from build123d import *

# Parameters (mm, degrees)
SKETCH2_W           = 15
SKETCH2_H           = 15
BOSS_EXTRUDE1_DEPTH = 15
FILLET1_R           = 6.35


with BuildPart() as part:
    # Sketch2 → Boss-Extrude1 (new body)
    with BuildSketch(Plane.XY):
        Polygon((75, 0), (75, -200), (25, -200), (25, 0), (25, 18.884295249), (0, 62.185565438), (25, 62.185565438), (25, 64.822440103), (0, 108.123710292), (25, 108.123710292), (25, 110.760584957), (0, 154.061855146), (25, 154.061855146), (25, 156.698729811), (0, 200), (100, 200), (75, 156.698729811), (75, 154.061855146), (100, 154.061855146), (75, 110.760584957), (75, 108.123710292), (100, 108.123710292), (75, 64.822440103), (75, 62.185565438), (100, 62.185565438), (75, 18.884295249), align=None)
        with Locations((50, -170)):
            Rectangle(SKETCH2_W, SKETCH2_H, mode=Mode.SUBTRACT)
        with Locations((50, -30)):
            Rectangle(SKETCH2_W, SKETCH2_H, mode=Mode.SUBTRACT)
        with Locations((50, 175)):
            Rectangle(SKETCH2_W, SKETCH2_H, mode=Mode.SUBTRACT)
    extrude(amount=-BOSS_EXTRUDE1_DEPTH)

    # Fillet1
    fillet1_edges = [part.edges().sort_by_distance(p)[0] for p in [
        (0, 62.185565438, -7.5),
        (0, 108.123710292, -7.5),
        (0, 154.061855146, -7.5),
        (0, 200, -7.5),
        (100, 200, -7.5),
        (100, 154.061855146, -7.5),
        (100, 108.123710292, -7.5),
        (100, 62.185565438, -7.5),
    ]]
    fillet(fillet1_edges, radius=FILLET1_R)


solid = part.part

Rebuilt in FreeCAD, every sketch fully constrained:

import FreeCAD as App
import Part
import Sketcher
Q = App.Units.Quantity


def edges_at(feature, points):
    """Names of the edges that pass closest to the given points."""
    edges = feature.Shape.Edges
    near = lambda p: min(range(len(edges)), key=lambda i: edges[i].distToShape(Part.Vertex(*p))[0])
    return sorted({f"Edge{near(p) + 1}" for p in points})

doc = App.newDocument("Part")
params = doc.addObject("Spreadsheet::Sheet", "Params")
for row, (alias, value) in enumerate([
    ("sketch1_width", "25 mm"),
    ("sketch1_width2", "100 mm"),
    ("sketch1_width3", "15 mm"),
    ("pad1_length", "15 mm"),
    ("fillet_radius", "6.35 mm"),
], start=1):
    params.set(f"A{row}", alias)
    params.set(f"B{row}", "=" + value)
    params.setAlias(f"B{row}", alias)

body = doc.addObject("PartDesign::Body", "Body")

# Sketch on XY plane
sketch1 = body.newObject("Sketcher::SketchObject", "Sketch")
sketch1.AttachmentSupport = (doc.getObject("XY_Plane"), [""])
sketch1.MapMode = "FlatFace"
sketch1.addGeometry(Part.LineSegment(App.Vector(75, -200, 0), App.Vector(75, 18.9, 0)), False)
sketch1.addGeometry(Part.LineSegment(App.Vector(75, 18.9, 0), App.Vector(100, 62.2, 0)), False)
sketch1.addGeometry(Part.LineSegment(App.Vector(100, 62.2, 0), App.Vector(75, 62.2, 0)), False)
sketch1.addGeometry(Part.LineSegment(App.Vector(75, 62.2, 0), App.Vector(75, 64.8, 0)), False)
sketch1.addGeometry(Part.LineSegment(App.Vector(75, 64.8, 0), App.Vector(100, 108.1, 0)), False)
sketch1.addGeometry(Part.LineSegment(App.Vector(100, 108.1, 0), App.Vector(75, 108.1, 0)), False)
sketch1.addGeometry(Part.LineSegment(App.Vector(75, 108.1, 0), App.Vector(75, 110.8, 0)), False)
sketch1.addGeometry(Part.LineSegment(App.Vector(75, 110.8, 0), App.Vector(100, 154.1, 0)), False)
sketch1.addGeometry(Part.LineSegment(App.Vector(100, 154.1, 0), App.Vector(75, 154.1, 0)), False)
sketch1.addGeometry(Part.LineSegment(App.Vector(75, 154.1, 0), App.Vector(75, 156.7, 0)), False)
sketch1.addGeometry(Part.LineSegment(App.Vector(75, 156.7, 0), App.Vector(100, 200, 0)), False)
sketch1.addGeometry(Part.LineSegment(App.Vector(100, 200, 0), App.Vector(0, 200, 0)), False)
sketch1.addGeometry(Part.LineSegment(App.Vector(0, 200, 0), App.Vector(25, 156.7, 0)), False)
sketch1.addGeometry(Part.LineSegment(App.Vector(25, 156.7, 0), App.Vector(25, 154.1, 0)), False)
sketch1.addGeometry(Part.LineSegment(App.Vector(25, 154.1, 0), App.Vector(0, 154.1, 0)), False)
sketch1.addGeometry(Part.LineSegment(App.Vector(0, 154.1, 0), App.Vector(25, 110.8, 0)), False)
sketch1.addGeometry(Part.LineSegment(App.Vector(25, 110.8, 0), App.Vector(25, 108.1, 0)), False)
sketch1.addGeometry(Part.LineSegment(App.Vector(25, 108.1, 0), App.Vector(0, 108.1, 0)), False)
sketch1.addGeometry(Part.LineSegment(App.Vector(0, 108.1, 0), App.Vector(25, 64.8, 0)), False)
sketch1.addGeometry(Part.LineSegment(App.Vector(25, 64.8, 0), App.Vector(25, 62.2, 0)), False)
sketch1.addGeometry(Part.LineSegment(App.Vector(25, 62.2, 0), App.Vector(0, 62.2, 0)), False)
sketch1.addGeometry(Part.LineSegment(App.Vector(0, 62.2, 0), App.Vector(25, 18.9, 0)), False)
sketch1.addGeometry(Part.LineSegment(App.Vector(25, 18.9, 0), App.Vector(25, -200, 0)), False)
sketch1.addGeometry(Part.LineSegment(App.Vector(25, -200, 0), App.Vector(75, -200, 0)), False)
sketch1.addGeometry(Part.LineSegment(App.Vector(42.5, -177.5, 0), App.Vector(42.5, -162.5, 0)), False)
sketch1.addGeometry(Part.LineSegment(App.Vector(42.5, -162.5, 0), App.Vector(57.5, -162.5, 0)), False)
sketch1.addGeometry(Part.LineSegment(App.Vector(57.5, -162.5, 0), App.Vector(57.5, -177.5, 0)), False)
sketch1.addGeometry(Part.LineSegment(App.Vector(57.5, -177.5, 0), App.Vector(42.5, -177.5, 0)), False)
sketch1.addGeometry(Part.LineSegment(App.Vector(42.5, -37.5, 0), App.Vector(42.5, -22.5, 0)), False)
sketch1.addGeometry(Part.LineSegment(App.Vector(42.5, -22.5, 0), App.Vector(57.5, -22.5, 0)), False)
sketch1.addGeometry(Part.LineSegment(App.Vector(57.5, -22.5, 0), App.Vector(57.5, -37.5, 0)), False)
sketch1.addGeometry(Part.LineSegment(App.Vector(57.5, -37.5, 0), App.Vector(42.5, -37.5, 0)), False)
sketch1.addGeometry(Part.LineSegment(App.Vector(42.5, 167.5, 0), App.Vector(42.5, 182.5, 0)), False)
sketch1.addGeometry(Part.LineSegment(App.Vector(42.5, 182.5, 0), App.Vector(57.5, 182.5, 0)), False)
sketch1.addGeometry(Part.LineSegment(App.Vector(57.5, 182.5, 0), App.Vector(57.5, 167.5, 0)), False)
sketch1.addGeometry(Part.LineSegment(App.Vector(57.5, 167.5, 0), App.Vector(42.5, 167.5, 0)), False)
sketch1.addConstraint(Sketcher.Constraint("Coincident", 0, 2, 1, 1))
sketch1.addConstraint(Sketcher.Constraint("Coincident", 1, 2, 2, 1))
sketch1.addConstraint(Sketcher.Constraint("Coincident", 2, 2, 3, 1))
sketch1.addConstraint(Sketcher.Constraint("Coincident", 3, 2, 4, 1))
sketch1.addConstraint(Sketcher.Constraint("Coincident", 4, 2, 5, 1))
sketch1.addConstraint(Sketcher.Constraint("Coincident", 5, 2, 6, 1))
sketch1.addConstraint(Sketcher.Constraint("Coincident", 6, 2, 7, 1))
sketch1.addConstraint(Sketcher.Constraint("Coincident", 7, 2, 8, 1))
sketch1.addConstraint(Sketcher.Constraint("Coincident", 8, 2, 9, 1))
sketch1.addConstraint(Sketcher.Constraint("Coincident", 9, 2, 10, 1))
sketch1.addConstraint(Sketcher.Constraint("Coincident", 10, 2, 11, 1))
sketch1.addConstraint(Sketcher.Constraint("Coincident", 11, 2, 12, 1))
sketch1.addConstraint(Sketcher.Constraint("Coincident", 12, 2, 13, 1))
sketch1.addConstraint(Sketcher.Constraint("Coincident", 13, 2, 14, 1))
sketch1.addConstraint(Sketcher.Constraint("Coincident", 14, 2, 15, 1))
sketch1.addConstraint(Sketcher.Constraint("Coincident", 15, 2, 16, 1))
sketch1.addConstraint(Sketcher.Constraint("Coincident", 16, 2, 17, 1))
sketch1.addConstraint(Sketcher.Constraint("Coincident", 17, 2, 18, 1))
sketch1.addConstraint(Sketcher.Constraint("Coincident", 18, 2, 19, 1))
sketch1.addConstraint(Sketcher.Constraint("Coincident", 19, 2, 20, 1))
sketch1.addConstraint(Sketcher.Constraint("Coincident", 20, 2, 21, 1))
sketch1.addConstraint(Sketcher.Constraint("Coincident", 21, 2, 22, 1))
sketch1.addConstraint(Sketcher.Constraint("Coincident", 22, 2, 23, 1))
sketch1.addConstraint(Sketcher.Constraint("Coincident", 23, 2, 0, 1))
sketch1.addConstraint(Sketcher.Constraint("Coincident", 24, 2, 25, 1))
sketch1.addConstraint(Sketcher.Constraint("Coincident", 25, 2, 26, 1))
sketch1.addConstraint(Sketcher.Constraint("Coincident", 26, 2, 27, 1))
sketch1.addConstraint(Sketcher.Constraint("Coincident", 27, 2, 24, 1))
sketch1.addConstraint(Sketcher.Constraint("Coincident", 28, 2, 29, 1))
sketch1.addConstraint(Sketcher.Constraint("Coincident", 29, 2, 30, 1))
sketch1.addConstraint(Sketcher.Constraint("Coincident", 30, 2, 31, 1))
sketch1.addConstraint(Sketcher.Constraint("Coincident", 31, 2, 28, 1))
sketch1.addConstraint(Sketcher.Constraint("Coincident", 32, 2, 33, 1))
sketch1.addConstraint(Sketcher.Constraint("Coincident", 33, 2, 34, 1))
sketch1.addConstraint(Sketcher.Constraint("Coincident", 34, 2, 35, 1))
sketch1.addConstraint(Sketcher.Constraint("Coincident", 35, 2, 32, 1))
sketch1.addConstraint(Sketcher.Constraint("Vertical", 0))
sketch1.addConstraint(Sketcher.Constraint("Horizontal", 2))
sketch1.addConstraint(Sketcher.Constraint("Vertical", 3))
sketch1.addConstraint(Sketcher.Constraint("Horizontal", 5))
sketch1.addConstraint(Sketcher.Constraint("Vertical", 6))
sketch1.addConstraint(Sketcher.Constraint("Horizontal", 8))
sketch1.addConstraint(Sketcher.Constraint("Vertical", 9))
sketch1.addConstraint(Sketcher.Constraint("Horizontal", 11))
sketch1.addConstraint(Sketcher.Constraint("Vertical", 13))
sketch1.addConstraint(Sketcher.Constraint("Horizontal", 14))
sketch1.addConstraint(Sketcher.Constraint("Vertical", 16))
sketch1.addConstraint(Sketcher.Constraint("Horizontal", 17))
sketch1.addConstraint(Sketcher.Constraint("Vertical", 19))
sketch1.addConstraint(Sketcher.Constraint("Horizontal", 20))
sketch1.addConstraint(Sketcher.Constraint("Vertical", 22))
sketch1.addConstraint(Sketcher.Constraint("Horizontal", 23))
sketch1.addConstraint(Sketcher.Constraint("Vertical", 24))
sketch1.addConstraint(Sketcher.Constraint("Horizontal", 25))
sketch1.addConstraint(Sketcher.Constraint("Vertical", 26))
sketch1.addConstraint(Sketcher.Constraint("Horizontal", 27))
sketch1.addConstraint(Sketcher.Constraint("Vertical", 28))
sketch1.addConstraint(Sketcher.Constraint("Horizontal", 29))
sketch1.addConstraint(Sketcher.Constraint("Vertical", 30))
sketch1.addConstraint(Sketcher.Constraint("Horizontal", 31))
sketch1.addConstraint(Sketcher.Constraint("Vertical", 32))
sketch1.addConstraint(Sketcher.Constraint("Horizontal", 33))
sketch1.addConstraint(Sketcher.Constraint("Vertical", 34))
sketch1.addConstraint(Sketcher.Constraint("Horizontal", 35))
sketch1.addConstraint(Sketcher.Constraint("PointOnObject", 11, 2, -2))
sketch1.addConstraint(Sketcher.Constraint("PointOnObject", 14, 2, -2))
sketch1.addConstraint(Sketcher.Constraint("PointOnObject", 17, 2, -2))
sketch1.addConstraint(Sketcher.Constraint("PointOnObject", 20, 2, -2))
sketch1.addConstraint(Sketcher.Constraint("Parallel", 1, 4))
sketch1.addConstraint(Sketcher.Constraint("Parallel", 4, 7))
sketch1.addConstraint(Sketcher.Constraint("Parallel", 7, 10))
sketch1.addConstraint(Sketcher.Constraint("Parallel", 12, 15))
sketch1.addConstraint(Sketcher.Constraint("Parallel", 15, 18))
sketch1.addConstraint(Sketcher.Constraint("Parallel", 18, 21))
sketch1.addConstraint(Sketcher.Constraint("Horizontal", 9, 2, 12, 2))
sketch1.addConstraint(Sketcher.Constraint("Horizontal", 8, 2, 13, 2))
sketch1.addConstraint(Sketcher.Constraint("Horizontal", 6, 2, 15, 2))
sketch1.addConstraint(Sketcher.Constraint("Horizontal", 5, 2, 16, 2))
sketch1.addConstraint(Sketcher.Constraint("Horizontal", 3, 2, 18, 2))
sketch1.addConstraint(Sketcher.Constraint("Horizontal", 2, 2, 19, 2))
sketch1.addConstraint(Sketcher.Constraint("Horizontal", 0, 2, 21, 2))
sketch1.addConstraint(Sketcher.Constraint("Vertical", 0, 2, 2, 2))
sketch1.addConstraint(Sketcher.Constraint("Vertical", 1, 2, 4, 2))
sketch1.addConstraint(Sketcher.Constraint("Vertical", 3, 2, 5, 2))
sketch1.addConstraint(Sketcher.Constraint("Vertical", 4, 2, 7, 2))
sketch1.addConstraint(Sketcher.Constraint("Vertical", 6, 2, 8, 2))
sketch1.addConstraint(Sketcher.Constraint("Vertical", 7, 2, 10, 2))
sketch1.addConstraint(Sketcher.Constraint("Vertical", 27, 2, 28, 2))
sketch1.addConstraint(Sketcher.Constraint("Vertical", 26, 2, 29, 2))
sketch1.addConstraint(Sketcher.Constraint("Vertical", 31, 2, 32, 2))
sketch1.addConstraint(Sketcher.Constraint("Vertical", 30, 2, 33, 2))
sketch1.addConstraint(Sketcher.Constraint("Equal", 8, 14))
sketch1.addConstraint(Sketcher.Constraint("Equal", 3, 6))
sketch1.addConstraint(Sketcher.Constraint("Equal", 6, 9))
sketch1.addConstraint(Sketcher.Constraint("Equal", 35, 24))
sketch1.addConstraint(Sketcher.Constraint("Equal", 26, 28))
sketch1.addConstraint(Sketcher.Constraint("Equal", 30, 32))
sketch1.addConstraint(Sketcher.Constraint("DistanceX", 2, 2, 2, 1, Q("25 mm")))
sketch1.addConstraint(Sketcher.Constraint("DistanceX", 11, 2, 11, 1, Q("100 mm")))
sketch1.addConstraint(Sketcher.Constraint("DistanceX", 25, 1, 25, 2, Q("15 mm")))
sketch1.addConstraint(Sketcher.Constraint("Angle", 1, Q("60 deg")))
sketch1.addConstraint(Sketcher.Constraint("DistanceY", -1, 1, 10, 2, Q("200 mm")))
sketch1.addConstraint(Sketcher.Constraint("DistanceY", 22, 2, -1, 1, Q("200 mm")))
sketch1.addConstraint(Sketcher.Constraint("DistanceX", -1, 1, 24, 2, Q("42.5 mm")))
sketch1.addConstraint(Sketcher.Constraint("DistanceY", 24, 2, -1, 1, Q("162.5 mm")))
sketch1.addConstraint(Sketcher.Constraint("DistanceY", 28, 2, -1, 1, Q("22.5 mm")))
sketch1.addConstraint(Sketcher.Constraint("DistanceY", -1, 1, 32, 2, Q("182.5 mm")))
sketch1.addConstraint(Sketcher.Constraint("DistanceY", 0, 1, 0, 2, Q("218.884295 mm")))
sketch1.setExpression("Constraints[97]", "Params.sketch1_width")
sketch1.setExpression("Constraints[98]", "Params.sketch1_width2")
sketch1.setExpression("Constraints[99]", "Params.sketch1_width3")
pad1 = body.newObject("PartDesign::Pad", "Pad")
pad1.Profile = sketch1
pad1.setExpression("Length", "Params.pad1_length")
pad1.Reversed = True
doc.recompute()

fillet = body.newObject("PartDesign::Fillet", "Fillet")
fillet.Base = (pad1, edges_at(pad1, [
    (0, 62.186, -7.5),
    (0, 108.124, -7.5),
    (0, 154.062, -7.5),
    (0, 200, -7.5),
    (100, 200, -7.5),
    (100, 154.062, -7.5),
    (100, 108.124, -7.5),
    (100, 62.186, -7.5),
]))
fillet.setExpression("Radius", "Params.fillet_radius")

doc.recompute()
